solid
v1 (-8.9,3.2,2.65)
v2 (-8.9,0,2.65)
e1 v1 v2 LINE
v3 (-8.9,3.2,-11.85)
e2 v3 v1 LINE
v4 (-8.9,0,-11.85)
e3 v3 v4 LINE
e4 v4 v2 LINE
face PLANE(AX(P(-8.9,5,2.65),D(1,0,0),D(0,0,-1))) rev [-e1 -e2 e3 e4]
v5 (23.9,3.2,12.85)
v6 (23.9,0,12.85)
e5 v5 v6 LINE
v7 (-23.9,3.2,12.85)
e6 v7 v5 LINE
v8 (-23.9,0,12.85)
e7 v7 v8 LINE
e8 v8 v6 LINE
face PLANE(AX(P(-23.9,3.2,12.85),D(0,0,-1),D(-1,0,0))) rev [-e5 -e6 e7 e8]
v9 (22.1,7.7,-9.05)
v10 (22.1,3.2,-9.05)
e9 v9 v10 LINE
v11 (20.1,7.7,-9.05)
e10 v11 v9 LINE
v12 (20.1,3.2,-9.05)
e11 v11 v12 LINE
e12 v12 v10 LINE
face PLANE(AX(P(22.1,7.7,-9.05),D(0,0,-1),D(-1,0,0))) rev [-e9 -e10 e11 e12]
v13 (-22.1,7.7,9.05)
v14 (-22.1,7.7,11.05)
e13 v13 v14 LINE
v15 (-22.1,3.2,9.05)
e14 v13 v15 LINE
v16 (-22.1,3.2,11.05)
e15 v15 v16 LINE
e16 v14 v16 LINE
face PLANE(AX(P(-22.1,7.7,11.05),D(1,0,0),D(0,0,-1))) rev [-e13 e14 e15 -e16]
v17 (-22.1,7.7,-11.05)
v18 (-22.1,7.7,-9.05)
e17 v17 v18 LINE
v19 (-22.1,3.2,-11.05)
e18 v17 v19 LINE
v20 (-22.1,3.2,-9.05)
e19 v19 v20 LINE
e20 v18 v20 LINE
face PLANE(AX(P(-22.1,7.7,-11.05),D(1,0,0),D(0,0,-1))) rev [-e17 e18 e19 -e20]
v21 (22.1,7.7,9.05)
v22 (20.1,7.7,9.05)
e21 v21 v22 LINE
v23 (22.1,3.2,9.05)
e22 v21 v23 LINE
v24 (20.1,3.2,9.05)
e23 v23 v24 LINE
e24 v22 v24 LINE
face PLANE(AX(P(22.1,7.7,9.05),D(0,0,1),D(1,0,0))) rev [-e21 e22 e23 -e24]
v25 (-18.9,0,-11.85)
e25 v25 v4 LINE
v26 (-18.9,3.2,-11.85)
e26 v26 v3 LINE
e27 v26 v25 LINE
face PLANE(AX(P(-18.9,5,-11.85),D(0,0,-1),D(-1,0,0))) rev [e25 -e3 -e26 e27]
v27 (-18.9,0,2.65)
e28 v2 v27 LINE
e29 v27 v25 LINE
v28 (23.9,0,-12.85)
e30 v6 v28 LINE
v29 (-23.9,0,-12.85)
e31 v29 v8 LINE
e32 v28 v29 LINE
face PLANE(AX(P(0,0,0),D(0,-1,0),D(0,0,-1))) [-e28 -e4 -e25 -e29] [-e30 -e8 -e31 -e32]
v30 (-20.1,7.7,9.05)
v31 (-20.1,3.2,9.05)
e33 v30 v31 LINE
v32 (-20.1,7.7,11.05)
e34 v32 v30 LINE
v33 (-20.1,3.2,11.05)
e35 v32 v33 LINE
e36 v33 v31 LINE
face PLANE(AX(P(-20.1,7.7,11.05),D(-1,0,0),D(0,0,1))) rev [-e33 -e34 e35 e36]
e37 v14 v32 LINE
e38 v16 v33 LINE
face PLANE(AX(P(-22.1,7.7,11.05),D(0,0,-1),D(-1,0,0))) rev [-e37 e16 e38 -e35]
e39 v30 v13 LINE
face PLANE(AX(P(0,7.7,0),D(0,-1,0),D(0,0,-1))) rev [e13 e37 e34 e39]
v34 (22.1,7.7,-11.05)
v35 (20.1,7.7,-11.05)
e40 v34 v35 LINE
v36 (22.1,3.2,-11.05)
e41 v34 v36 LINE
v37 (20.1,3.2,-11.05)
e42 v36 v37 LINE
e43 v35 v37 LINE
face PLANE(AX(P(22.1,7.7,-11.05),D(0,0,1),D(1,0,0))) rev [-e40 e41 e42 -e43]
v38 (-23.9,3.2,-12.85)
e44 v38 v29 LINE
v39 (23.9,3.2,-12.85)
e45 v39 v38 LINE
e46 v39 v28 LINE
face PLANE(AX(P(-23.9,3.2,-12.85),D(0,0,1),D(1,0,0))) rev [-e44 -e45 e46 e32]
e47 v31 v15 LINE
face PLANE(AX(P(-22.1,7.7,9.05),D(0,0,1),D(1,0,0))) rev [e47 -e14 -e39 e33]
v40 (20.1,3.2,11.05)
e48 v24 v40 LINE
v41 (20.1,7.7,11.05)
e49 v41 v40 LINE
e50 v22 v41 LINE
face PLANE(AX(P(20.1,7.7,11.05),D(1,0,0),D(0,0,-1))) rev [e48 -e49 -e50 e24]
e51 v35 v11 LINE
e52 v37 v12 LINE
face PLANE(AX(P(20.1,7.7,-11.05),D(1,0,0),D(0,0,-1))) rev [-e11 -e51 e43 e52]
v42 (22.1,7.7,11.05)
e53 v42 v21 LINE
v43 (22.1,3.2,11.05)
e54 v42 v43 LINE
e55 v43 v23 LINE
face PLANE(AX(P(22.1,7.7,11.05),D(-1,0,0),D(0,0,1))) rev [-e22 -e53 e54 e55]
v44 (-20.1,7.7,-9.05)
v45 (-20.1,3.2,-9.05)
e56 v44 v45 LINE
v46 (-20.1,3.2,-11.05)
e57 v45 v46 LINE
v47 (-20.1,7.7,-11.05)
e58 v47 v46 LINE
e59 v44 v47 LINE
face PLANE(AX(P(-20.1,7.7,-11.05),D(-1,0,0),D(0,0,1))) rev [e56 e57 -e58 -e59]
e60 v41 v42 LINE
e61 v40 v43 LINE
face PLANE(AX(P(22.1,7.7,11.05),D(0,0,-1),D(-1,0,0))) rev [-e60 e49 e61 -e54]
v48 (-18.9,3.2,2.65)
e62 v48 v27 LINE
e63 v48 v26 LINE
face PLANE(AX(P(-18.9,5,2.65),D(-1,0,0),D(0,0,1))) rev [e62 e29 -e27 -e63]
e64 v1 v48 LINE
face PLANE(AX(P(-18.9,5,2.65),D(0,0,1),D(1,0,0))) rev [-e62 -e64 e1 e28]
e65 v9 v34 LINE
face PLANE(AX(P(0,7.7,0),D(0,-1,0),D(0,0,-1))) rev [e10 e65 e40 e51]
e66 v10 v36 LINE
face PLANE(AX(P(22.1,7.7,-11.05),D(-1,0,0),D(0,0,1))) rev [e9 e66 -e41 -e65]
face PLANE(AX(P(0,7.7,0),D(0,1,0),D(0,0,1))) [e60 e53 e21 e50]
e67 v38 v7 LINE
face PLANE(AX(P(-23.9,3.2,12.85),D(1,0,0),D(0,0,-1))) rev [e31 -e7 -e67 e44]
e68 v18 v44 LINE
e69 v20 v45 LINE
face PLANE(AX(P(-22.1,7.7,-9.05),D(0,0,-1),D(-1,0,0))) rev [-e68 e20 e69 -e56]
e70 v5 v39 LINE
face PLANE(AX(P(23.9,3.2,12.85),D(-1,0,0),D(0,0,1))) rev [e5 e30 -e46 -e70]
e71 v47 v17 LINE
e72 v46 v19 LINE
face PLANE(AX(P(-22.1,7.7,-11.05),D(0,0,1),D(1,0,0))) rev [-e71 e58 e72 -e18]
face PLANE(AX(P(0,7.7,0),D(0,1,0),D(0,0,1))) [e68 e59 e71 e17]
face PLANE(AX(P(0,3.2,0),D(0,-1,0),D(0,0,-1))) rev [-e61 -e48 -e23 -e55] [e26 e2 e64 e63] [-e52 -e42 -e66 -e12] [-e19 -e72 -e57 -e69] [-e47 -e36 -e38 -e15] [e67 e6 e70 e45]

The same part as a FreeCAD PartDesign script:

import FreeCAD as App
import Part
import Sketcher

V = App.Vector


def add_polygon(sketch, points):
    """Adds a closed chain of lines whose ends are joined by coincident constraints."""
    first, n = sketch.GeometryCount, len(points)
    for a, b in zip(points, points[1:] + points[:1]):
        sketch.addGeometry(Part.LineSegment(App.Vector(*a, 0), App.Vector(*b, 0)), False)
    for i in range(n):
        sketch.addConstraint(Sketcher.Constraint("Coincident", first + i, 2, first + (i + 1) % n, 1))

doc = App.newDocument("Part")
body = doc.addObject("PartDesign::Body", "Body")

# Sketch on XZ plane
sketch1 = doc.addObject("Sketcher::SketchObject", "Sketch")
body.addObject(sketch1)
sketch1.AttachmentSupport = (doc.XZ_Plane, [""])
sketch1.MapMode = "FlatFace"
add_polygon(sketch1, [(-23.9, -12.85), (-23.9, 12.85), (23.9, 12.85), (23.9, -12.85)])  # lines 0-3
sketch1.addConstraint([
    Sketcher.Constraint("Vertical", 0),
    Sketcher.Constraint("Horizontal", 1),
    Sketcher.Constraint("Vertical", 2),
    Sketcher.Constraint("Horizontal", 3),
    Sketcher.Constraint("Symmetric", 0, 2, 2, 2, -1, 1),
    Sketcher.Constraint("DistanceX", 1, 1, 1, 2, 47.8),
    Sketcher.Constraint("DistanceY", 0, 1, 0, 2, 25.7),
])
pad1 = doc.addObject("PartDesign::Pad", "Pad")
body.addObject(pad1)
pad1.Profile = sketch1
pad1.Length = 3.2
pad1.Reversed = True

# Sketch on XZ plane
sketch2 = doc.addObject("Sketcher::SketchObject", "Sketch001")
body.addObject(sketch2)
sketch2.AttachmentSupport = (doc.XZ_Plane, [""])
sketch2.MapMode = "FlatFace"
sketch2.AttachmentOffset = App.Placement(V(0, 0, -3.2), App.Rotation())
add_polygon(sketch2, [(20.1, 9.05), (20.1, 11.05), (22.1, 11.05), (22.1, 9.05)])  # lines 0-3
add_polygon(sketch2, [(20.1, -11.05), (20.1, -9.05), (22.1, -9.05), (22.1, -11.05)])  # lines 4-7
add_polygon(sketch2, [(-22.1, -11.05), (-22.1, -9.05), (-20.1, -9.05), (-20.1, -11.05)])  # lines 8-11
add_polygon(sketch2, [(-22.1, 9.05), (-22.1, 11.05), (-20.1, 11.05), (-20.1, 9.05)])  # lines 12-15
sketch2.addConstraint([
    Sketcher.Constraint("Vertical", 0),
    Sketcher.Constraint("Horizontal", 1),
    Sketcher.Constraint("Vertical", 2),
    Sketcher.Constraint("Horizontal", 3),
    Sketcher.Constraint("Vertical", 4),
    Sketcher.Constraint("Horizontal", 5),
    Sketcher.Constraint("Vertical", 6),
    Sketcher.Constraint("Horizontal", 7),
    Sketcher.Constraint("Vertical", 8),
    Sketcher.Constraint("Horizontal", 9),
    Sketcher.Constraint("Vertical", 10),
    Sketcher.Constraint("Horizontal", 11),
    Sketcher.Constraint("Vertical", 12),
    Sketcher.Constraint("Horizontal", 13),
    Sketcher.Constraint("Vertical", 14),
    Sketcher.Constraint("Horizontal", 15),
    Sketcher.Constraint("Symmetric", 2, 2, 8, 2, -1, 1),
    Sketcher.Constraint("Symmetric", 0, 2, 10, 2, -1, 1),
    Sketcher.Constraint("Symmetric", 6, 2, 12, 2, -1, 1),
    Sketcher.Constraint("Symmetric", 4, 2, 14, 2, -1, 1),
    Sketcher.Constraint("Symmetric", 5, 2, 8, 2, -2),
    Sketcher.Constraint("Symmetric", 7, 2, 10, 2, -2),
    Sketcher.Constraint("Equal", 15, 0),
    Sketcher.Constraint("DistanceX", 1, 1, 1, 2, 2.0),
    Sketcher.Constraint("DistanceX", -1, 1, 0, 2, 20.1),
    Sketcher.Constraint("DistanceY", 4, 2, 3, 2, 18.1),
])
pad2 = doc.addObject("PartDesign::Pad", "Pad001")
body.addObject(pad2)
pad2.Profile = sketch2
pad2.Length = 4.5
pad2.Reversed = True

# Sketch on XZ plane
sketch3 = doc.addObject("Sketcher::SketchObject", "Sketch002")
body.addObject(sketch3)
sketch3.AttachmentSupport = (doc.XZ_Plane, [""])
sketch3.MapMode = "FlatFace"
add_polygon(sketch3, [(-18.9, 2.65), (-18.9, -11.85), (-8.9, -11.85), (-8.9, 2.65)])  # lines 0-3
sketch3.addConstraint([
    Sketcher.Constraint("Vertical", 0),
    Sketcher.Constraint("Horizontal", 1),
    Sketcher.Constraint("Vertical", 2),
    Sketcher.Constraint("Horizontal", 3),
    Sketcher.Constraint("DistanceX", 1, 1, 1, 2, 10.0),
    Sketcher.Constraint("DistanceY", 0, 2, 0, 1, 14.5),
    Sketcher.Constraint("DistanceX", 0, 2, -1, 1, 18.9),
    Sketcher.Constraint("DistanceY", 0, 2, -1, 1, 11.85),
])
pocket1 = doc.addObject("PartDesign::Pocket", "Pocket")
body.addObject(pocket1)
pocket1.Profile = sketch3
pocket1.Length = 5

doc.recompute()
